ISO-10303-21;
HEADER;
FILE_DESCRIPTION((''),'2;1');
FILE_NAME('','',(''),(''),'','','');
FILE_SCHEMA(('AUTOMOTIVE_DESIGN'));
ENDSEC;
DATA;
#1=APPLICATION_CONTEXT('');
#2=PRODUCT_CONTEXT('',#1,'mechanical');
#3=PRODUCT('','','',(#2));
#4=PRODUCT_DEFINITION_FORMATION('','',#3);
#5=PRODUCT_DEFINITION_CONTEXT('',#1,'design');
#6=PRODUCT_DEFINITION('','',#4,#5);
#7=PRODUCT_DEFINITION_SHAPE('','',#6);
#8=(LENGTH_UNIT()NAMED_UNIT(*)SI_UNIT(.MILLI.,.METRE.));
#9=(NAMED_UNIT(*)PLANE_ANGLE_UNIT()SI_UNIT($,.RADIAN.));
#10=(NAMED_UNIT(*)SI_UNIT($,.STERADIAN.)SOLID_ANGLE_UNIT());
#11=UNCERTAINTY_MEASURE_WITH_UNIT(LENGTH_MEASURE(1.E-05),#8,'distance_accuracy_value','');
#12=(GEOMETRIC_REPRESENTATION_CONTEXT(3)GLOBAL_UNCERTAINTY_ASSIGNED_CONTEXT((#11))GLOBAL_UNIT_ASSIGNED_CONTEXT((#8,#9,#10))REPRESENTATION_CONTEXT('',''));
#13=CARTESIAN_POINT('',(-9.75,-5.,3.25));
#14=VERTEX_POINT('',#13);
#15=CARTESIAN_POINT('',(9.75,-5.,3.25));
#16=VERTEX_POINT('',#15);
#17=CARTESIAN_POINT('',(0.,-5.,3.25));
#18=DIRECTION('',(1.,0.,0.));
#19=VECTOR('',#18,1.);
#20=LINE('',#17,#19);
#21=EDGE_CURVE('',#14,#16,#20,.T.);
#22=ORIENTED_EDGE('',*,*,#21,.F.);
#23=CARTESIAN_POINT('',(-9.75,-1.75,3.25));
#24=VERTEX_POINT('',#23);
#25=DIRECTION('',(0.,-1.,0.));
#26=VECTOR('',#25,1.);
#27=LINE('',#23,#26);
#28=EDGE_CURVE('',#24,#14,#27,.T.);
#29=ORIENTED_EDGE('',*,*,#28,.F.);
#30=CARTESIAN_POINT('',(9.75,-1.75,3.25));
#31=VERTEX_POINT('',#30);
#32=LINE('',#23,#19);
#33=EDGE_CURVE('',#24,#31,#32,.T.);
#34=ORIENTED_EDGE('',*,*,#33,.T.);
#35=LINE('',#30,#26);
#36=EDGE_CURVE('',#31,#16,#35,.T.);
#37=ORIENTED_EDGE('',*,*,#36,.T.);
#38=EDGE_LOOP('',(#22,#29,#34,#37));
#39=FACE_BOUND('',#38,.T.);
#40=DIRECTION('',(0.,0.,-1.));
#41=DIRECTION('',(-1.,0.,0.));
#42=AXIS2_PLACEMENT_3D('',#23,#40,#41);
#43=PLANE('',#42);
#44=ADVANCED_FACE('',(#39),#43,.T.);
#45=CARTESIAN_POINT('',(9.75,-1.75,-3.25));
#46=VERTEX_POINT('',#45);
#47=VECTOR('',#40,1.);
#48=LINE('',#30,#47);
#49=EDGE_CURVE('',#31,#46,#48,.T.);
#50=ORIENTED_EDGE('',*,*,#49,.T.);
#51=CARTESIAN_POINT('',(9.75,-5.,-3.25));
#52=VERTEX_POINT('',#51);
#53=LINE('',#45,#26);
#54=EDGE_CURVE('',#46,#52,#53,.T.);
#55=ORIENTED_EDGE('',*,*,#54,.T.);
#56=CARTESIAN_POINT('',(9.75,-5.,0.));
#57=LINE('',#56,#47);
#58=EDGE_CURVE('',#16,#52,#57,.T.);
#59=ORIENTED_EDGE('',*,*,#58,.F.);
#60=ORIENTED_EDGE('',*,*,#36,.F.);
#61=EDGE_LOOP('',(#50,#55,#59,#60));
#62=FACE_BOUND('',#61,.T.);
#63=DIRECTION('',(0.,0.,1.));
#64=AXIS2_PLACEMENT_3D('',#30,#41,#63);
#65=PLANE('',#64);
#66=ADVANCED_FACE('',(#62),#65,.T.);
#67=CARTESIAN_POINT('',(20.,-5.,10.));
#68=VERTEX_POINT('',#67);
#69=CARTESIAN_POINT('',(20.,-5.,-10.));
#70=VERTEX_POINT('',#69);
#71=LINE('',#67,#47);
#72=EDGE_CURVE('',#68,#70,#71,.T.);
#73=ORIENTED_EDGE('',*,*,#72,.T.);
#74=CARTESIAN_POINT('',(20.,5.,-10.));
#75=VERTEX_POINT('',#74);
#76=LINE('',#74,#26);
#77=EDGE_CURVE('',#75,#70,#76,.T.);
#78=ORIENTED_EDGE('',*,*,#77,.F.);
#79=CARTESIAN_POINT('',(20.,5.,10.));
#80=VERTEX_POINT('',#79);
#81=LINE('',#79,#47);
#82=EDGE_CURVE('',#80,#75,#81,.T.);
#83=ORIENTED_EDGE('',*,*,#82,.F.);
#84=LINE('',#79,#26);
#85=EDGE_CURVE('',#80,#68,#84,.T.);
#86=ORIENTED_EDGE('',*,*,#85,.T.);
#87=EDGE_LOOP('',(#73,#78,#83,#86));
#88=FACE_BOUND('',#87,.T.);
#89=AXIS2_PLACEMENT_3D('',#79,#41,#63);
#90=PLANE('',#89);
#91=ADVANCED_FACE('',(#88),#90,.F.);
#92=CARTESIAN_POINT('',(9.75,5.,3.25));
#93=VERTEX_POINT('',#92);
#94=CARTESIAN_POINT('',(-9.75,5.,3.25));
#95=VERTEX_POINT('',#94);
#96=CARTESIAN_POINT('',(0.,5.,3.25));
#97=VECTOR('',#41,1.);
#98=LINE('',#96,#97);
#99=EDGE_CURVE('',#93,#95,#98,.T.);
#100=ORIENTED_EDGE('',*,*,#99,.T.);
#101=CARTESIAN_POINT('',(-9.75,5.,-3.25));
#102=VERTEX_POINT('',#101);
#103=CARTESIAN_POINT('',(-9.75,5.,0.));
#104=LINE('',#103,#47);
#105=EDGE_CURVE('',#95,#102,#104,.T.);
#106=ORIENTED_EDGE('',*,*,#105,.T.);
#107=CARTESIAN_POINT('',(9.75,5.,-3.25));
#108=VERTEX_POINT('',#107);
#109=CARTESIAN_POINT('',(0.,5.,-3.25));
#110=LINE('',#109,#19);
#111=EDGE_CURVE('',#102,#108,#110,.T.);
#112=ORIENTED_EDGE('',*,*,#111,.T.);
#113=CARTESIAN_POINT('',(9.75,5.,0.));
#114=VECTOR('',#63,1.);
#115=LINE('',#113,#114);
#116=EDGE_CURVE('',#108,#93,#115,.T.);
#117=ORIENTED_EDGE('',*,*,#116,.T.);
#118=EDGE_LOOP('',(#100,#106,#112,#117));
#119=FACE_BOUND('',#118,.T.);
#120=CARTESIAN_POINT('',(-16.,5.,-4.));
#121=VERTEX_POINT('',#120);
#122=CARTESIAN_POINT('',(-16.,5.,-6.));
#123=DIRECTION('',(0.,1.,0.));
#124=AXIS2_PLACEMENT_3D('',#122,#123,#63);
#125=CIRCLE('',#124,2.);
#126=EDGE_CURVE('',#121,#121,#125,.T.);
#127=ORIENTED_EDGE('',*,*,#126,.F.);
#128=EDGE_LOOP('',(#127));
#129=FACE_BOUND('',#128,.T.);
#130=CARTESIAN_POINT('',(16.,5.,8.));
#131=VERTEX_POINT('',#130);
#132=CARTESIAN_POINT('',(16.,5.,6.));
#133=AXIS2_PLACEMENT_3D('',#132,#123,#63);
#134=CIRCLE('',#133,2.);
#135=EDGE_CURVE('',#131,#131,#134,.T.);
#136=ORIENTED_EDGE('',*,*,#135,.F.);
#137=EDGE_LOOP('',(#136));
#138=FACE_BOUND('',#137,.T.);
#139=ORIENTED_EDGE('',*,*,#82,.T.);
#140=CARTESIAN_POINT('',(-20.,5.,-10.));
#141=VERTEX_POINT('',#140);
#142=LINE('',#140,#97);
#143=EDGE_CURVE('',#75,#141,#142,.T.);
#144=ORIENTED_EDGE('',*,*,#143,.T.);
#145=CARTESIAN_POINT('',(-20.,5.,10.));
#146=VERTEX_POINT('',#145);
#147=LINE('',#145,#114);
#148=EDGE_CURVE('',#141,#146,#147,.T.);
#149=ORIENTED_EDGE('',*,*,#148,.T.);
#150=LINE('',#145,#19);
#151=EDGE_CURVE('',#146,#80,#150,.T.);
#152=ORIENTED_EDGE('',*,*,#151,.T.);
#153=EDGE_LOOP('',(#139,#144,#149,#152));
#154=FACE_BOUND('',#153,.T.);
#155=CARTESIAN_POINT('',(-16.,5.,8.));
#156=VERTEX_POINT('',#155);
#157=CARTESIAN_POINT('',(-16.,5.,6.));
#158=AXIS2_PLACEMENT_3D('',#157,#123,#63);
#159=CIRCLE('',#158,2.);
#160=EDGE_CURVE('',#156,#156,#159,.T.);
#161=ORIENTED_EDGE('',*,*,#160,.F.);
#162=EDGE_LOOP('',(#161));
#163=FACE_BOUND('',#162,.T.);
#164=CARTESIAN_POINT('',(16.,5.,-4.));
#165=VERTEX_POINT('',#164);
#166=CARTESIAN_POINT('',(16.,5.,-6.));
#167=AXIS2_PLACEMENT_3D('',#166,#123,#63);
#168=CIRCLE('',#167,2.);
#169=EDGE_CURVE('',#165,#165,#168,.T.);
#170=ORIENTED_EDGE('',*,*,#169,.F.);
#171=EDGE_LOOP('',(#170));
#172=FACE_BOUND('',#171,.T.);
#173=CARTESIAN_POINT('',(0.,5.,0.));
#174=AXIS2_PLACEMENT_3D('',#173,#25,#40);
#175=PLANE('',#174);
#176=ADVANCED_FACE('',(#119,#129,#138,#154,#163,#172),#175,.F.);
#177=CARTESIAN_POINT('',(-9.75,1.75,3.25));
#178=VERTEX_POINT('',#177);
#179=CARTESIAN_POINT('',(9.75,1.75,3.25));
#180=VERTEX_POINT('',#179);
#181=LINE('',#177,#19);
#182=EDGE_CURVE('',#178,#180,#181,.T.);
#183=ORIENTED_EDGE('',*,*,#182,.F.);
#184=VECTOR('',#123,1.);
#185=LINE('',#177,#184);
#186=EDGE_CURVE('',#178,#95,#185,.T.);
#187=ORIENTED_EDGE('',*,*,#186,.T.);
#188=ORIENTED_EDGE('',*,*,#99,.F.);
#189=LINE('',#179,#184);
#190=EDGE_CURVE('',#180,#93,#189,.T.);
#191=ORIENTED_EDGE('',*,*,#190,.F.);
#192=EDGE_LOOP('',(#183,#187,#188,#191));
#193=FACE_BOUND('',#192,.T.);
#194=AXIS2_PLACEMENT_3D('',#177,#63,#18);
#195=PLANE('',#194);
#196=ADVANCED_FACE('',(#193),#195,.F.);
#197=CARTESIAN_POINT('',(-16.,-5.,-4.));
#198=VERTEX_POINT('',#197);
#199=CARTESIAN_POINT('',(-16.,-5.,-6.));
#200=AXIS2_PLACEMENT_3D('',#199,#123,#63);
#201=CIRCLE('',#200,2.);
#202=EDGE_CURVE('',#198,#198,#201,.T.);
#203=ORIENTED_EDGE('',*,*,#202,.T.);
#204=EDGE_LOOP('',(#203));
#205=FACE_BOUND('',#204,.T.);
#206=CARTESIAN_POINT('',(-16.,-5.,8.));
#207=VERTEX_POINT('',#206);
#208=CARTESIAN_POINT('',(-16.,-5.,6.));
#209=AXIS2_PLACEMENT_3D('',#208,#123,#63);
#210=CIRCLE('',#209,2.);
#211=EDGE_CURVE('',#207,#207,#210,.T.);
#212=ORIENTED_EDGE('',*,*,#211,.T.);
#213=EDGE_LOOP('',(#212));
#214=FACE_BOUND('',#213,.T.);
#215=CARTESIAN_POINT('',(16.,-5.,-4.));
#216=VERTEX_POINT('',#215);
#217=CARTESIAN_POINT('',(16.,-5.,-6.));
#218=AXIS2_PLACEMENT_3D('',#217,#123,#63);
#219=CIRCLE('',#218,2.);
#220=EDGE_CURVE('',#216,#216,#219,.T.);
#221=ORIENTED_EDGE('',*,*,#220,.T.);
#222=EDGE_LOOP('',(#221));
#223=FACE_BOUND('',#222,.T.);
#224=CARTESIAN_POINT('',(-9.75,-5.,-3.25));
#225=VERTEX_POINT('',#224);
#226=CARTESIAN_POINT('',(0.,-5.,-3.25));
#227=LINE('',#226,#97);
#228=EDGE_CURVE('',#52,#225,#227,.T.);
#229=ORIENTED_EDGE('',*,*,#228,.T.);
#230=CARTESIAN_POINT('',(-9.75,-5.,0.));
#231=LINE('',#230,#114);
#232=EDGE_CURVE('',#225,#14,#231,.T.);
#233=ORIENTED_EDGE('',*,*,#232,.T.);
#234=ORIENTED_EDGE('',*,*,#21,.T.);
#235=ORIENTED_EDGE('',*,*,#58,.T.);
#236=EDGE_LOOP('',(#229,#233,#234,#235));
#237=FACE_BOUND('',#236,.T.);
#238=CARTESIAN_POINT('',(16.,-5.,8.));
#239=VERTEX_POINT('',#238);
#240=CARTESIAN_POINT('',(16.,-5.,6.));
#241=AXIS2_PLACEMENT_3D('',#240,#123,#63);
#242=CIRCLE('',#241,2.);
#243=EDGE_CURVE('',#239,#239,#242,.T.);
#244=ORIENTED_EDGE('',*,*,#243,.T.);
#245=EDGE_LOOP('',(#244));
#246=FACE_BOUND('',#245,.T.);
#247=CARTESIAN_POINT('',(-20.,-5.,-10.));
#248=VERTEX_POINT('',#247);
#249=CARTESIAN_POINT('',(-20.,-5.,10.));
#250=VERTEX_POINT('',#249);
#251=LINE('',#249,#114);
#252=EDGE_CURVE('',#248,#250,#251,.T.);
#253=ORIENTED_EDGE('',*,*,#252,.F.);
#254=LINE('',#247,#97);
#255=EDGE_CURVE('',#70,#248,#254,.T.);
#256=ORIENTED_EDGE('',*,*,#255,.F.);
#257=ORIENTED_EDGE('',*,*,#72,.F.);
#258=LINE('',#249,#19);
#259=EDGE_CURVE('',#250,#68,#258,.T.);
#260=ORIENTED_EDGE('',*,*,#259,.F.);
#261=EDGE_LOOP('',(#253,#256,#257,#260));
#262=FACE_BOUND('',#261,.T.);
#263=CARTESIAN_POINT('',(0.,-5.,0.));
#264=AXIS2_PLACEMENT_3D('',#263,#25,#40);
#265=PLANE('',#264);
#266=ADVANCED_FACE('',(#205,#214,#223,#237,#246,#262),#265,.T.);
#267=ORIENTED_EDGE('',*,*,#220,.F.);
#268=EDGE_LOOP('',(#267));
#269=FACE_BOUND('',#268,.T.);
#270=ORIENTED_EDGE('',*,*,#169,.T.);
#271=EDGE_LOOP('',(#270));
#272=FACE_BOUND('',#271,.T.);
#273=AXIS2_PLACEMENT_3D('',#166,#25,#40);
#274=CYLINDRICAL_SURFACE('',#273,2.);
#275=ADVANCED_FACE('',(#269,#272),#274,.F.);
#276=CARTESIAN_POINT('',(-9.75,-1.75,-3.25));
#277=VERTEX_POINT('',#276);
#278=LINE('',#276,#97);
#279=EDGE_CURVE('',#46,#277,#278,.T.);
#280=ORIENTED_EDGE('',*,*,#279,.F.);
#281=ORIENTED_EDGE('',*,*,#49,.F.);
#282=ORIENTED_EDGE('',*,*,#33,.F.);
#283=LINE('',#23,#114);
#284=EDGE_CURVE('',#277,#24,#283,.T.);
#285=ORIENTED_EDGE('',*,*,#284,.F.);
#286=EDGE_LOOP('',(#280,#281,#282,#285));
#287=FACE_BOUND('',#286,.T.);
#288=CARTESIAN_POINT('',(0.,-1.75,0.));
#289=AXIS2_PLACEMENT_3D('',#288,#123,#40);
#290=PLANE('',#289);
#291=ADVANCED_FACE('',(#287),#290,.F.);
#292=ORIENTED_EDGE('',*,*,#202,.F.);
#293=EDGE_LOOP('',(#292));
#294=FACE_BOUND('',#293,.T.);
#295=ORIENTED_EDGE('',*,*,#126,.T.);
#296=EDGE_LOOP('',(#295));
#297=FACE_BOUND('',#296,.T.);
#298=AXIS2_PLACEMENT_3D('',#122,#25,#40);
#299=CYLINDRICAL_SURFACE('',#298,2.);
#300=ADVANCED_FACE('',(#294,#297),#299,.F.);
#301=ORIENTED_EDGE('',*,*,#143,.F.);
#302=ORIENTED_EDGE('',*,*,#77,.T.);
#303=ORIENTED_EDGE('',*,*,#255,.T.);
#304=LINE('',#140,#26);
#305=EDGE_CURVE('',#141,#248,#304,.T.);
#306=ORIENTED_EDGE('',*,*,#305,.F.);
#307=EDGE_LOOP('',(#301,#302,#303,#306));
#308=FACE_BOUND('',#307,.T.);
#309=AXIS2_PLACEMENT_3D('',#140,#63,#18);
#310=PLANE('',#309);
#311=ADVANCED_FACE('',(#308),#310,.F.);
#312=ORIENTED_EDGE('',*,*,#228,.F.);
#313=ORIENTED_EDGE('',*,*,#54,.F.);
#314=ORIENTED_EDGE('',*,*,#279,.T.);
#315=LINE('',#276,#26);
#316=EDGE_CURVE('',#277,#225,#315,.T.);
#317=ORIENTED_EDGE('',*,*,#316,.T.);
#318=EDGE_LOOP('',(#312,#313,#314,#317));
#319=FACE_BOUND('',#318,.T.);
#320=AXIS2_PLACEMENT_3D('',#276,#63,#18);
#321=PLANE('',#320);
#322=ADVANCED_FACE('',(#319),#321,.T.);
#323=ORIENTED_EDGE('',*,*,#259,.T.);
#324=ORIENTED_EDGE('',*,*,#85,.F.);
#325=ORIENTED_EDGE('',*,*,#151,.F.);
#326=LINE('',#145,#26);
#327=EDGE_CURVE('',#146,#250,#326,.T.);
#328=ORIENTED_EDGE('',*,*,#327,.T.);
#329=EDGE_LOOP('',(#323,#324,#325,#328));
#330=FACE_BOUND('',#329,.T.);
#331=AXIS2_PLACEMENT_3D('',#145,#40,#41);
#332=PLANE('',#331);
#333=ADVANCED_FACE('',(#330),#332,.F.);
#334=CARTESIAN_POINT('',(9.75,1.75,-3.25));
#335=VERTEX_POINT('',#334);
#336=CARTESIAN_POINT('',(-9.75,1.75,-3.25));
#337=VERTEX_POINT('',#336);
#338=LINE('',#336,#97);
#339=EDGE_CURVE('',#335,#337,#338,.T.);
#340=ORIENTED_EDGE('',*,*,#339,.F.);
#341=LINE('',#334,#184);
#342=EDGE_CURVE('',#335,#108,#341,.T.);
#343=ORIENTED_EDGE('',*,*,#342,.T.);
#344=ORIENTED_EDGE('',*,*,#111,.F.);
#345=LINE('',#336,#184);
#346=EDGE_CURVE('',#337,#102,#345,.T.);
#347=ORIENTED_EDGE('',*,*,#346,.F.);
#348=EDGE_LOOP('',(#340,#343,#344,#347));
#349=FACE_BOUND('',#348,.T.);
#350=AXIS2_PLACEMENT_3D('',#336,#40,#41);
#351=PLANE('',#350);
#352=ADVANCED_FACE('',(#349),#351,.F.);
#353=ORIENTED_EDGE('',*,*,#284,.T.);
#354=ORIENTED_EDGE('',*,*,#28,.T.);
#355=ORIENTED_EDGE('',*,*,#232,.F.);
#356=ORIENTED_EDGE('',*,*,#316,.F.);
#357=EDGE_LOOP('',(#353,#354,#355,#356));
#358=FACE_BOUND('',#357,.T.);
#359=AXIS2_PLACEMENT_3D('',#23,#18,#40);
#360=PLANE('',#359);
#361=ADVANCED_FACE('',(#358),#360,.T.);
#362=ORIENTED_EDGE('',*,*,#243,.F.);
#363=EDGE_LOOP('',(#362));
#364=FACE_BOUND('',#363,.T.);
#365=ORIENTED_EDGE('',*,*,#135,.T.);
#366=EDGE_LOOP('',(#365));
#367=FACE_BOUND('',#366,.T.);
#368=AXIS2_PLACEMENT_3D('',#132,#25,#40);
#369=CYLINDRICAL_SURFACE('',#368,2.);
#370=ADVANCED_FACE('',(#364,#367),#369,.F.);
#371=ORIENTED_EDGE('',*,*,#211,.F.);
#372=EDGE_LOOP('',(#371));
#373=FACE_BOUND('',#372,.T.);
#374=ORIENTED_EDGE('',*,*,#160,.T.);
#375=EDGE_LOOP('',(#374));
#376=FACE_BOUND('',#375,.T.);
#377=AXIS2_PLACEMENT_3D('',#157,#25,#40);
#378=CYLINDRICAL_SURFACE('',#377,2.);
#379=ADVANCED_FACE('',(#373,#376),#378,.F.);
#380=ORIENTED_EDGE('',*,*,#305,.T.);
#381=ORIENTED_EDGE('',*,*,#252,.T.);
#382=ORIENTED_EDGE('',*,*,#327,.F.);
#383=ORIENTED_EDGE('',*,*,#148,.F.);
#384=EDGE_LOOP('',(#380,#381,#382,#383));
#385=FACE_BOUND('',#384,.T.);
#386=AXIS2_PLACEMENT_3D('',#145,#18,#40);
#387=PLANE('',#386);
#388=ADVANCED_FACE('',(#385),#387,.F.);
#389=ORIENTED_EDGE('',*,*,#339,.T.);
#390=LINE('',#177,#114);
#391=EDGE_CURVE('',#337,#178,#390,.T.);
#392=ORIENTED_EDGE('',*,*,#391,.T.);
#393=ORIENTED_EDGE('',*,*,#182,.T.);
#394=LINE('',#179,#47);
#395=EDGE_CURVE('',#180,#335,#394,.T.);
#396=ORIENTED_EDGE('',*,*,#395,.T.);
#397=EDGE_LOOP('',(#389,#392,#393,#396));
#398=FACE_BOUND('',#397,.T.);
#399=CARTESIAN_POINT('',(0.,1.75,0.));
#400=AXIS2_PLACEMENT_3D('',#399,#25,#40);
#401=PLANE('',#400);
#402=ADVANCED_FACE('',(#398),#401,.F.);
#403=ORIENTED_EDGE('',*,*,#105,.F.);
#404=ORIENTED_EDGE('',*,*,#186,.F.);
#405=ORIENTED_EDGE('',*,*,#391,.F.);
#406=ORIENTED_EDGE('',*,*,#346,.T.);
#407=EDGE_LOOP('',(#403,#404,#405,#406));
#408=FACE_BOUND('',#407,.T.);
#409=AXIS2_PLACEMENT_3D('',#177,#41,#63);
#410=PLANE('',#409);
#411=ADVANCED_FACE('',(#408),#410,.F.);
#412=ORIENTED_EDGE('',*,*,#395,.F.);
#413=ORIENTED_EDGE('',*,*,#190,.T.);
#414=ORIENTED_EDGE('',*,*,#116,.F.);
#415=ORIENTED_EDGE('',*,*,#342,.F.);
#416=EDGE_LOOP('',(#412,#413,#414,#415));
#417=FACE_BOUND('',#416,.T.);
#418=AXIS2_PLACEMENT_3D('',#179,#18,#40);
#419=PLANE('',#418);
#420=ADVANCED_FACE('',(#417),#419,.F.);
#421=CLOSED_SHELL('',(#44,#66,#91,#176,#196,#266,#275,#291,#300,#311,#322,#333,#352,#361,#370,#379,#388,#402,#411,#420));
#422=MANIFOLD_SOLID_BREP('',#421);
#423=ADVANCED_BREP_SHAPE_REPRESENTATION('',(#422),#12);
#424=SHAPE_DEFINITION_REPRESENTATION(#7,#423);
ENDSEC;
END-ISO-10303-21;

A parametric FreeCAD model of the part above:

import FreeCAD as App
import Part
import Sketcher
from FreeCAD import Vector
Q = App.Units.Quantity


def add_polygon(sketch, points):
    """Adds a closed chain of lines whose ends are joined by coincident constraints."""
    first, n = sketch.GeometryCount, len(points)
    for a, b in zip(points, points[1:] + points[:1]):
        sketch.addGeometry(Part.LineSegment(App.Vector(*a, 0), App.Vector(*b, 0)), False)
    for i in range(n):
        sketch.addConstraint(Sketcher.Constraint("Coincident", first + i, 2, first + (i + 1) % n, 1))

doc = App.newDocument("Part")
body = doc.addObject("PartDesign::Body", "Body")

# Sketch on XZ plane
sketch1 = body.newObject("Sketcher::SketchObject", "Sketch")
sketch1.AttachmentSupport = (doc.getObject("XZ_Plane"), [""])
sketch1.MapMode = "FlatFace"
add_polygon(sketch1, [(-20, -10), (-20, 10), (20, 10), (20, -10)])  # lines 0-3
sketch1.addGeometry(Part.Circle(Vector(-16, 6, 0), Vector(0, 0, 1), 2), False)  # 4
sketch1.addGeometry(Part.Circle(Vector(16, 6, 0), Vector(0, 0, 1), 2), False)  # 5
sketch1.addGeometry(Part.Circle(Vector(-16, -6, 0), Vector(0, 0, 1), 2), False)  # 6
sketch1.addGeometry(Part.Circle(Vector(16, -6, 0), Vector(0, 0, 1), 2), False)  # 7
sketch1.addConstraint(Sketcher.Constraint("Vertical", 0))
sketch1.addConstraint(Sketcher.Constraint("Horizontal", 1))
sketch1.addConstraint(Sketcher.Constraint("Vertical", 2))
sketch1.addConstraint(Sketcher.Constraint("Horizontal", 3))
sketch1.addConstraint(Sketcher.Constraint("Equal", 4, 5))
sketch1.addConstraint(Sketcher.Constraint("Equal", 5, 6))
sketch1.addConstraint(Sketcher.Constraint("Equal", 6, 7))
sketch1.addConstraint(Sketcher.Constraint("Symmetric", 5, 3, 6, 3, -1, 1))
sketch1.addConstraint(Sketcher.Constraint("Symmetric", 4, 3, 7, 3, -1, 1))
sketch1.addConstraint(Sketcher.Constraint("Symmetric", 0, 2, 2, 2, -1, 1))
sketch1.addConstraint(Sketcher.Constraint("Symmetric", 4, 3, 5, 3, -2))
sketch1.addConstraint(Sketcher.Constraint("Diameter", 4, Q("4 mm")))
sketch1.addConstraint(Sketcher.Constraint("DistanceX", 1, 1, 1, 2, Q("40 mm")))
sketch1.addConstraint(Sketcher.Constraint("DistanceY", 0, 1, 0, 2, Q("20 mm")))
sketch1.addConstraint(Sketcher.Constraint("DistanceX", 4, 3, -1, 1, Q("16 mm")))
sketch1.addConstraint(Sketcher.Constraint("DistanceY", -1, 1, 4, 3, Q("6 mm")))
pad1 = body.newObject("PartDesign::Pad", "Pad")
pad1.Profile = sketch1
pad1.Length = 10
pad1.Midplane = True

# Sketch on XZ plane
sketch2 = body.newObject("Sketcher::SketchObject", "Sketch001")
sketch2.AttachmentSupport = (doc.getObject("XZ_Plane"), [""])
sketch2.MapMode = "FlatFace"
sketch2.AttachmentOffset = App.Placement(Vector(0, 0, -5), App.Rotation())
add_polygon(sketch2, [(-10, -3), (-10, 3), (10, 3), (10, -3)])  # lines 0-3
sketch2.addConstraint(Sketcher.Constraint("Vertical", 0))
sketch2.addConstraint(Sketcher.Constraint("Horizontal", 1))
sketch2.addConstraint(Sketcher.Constraint("Vertical", 2))
sketch2.addConstraint(Sketcher.Constraint("Horizontal", 3))
sketch2.addConstraint(Sketcher.Constraint("Symmetric", 0, 2, 2, 2, -1, 1))
sketch2.addConstraint(Sketcher.Constraint("DistanceX", 1, 1, 1, 2, Q("19.5 mm")))
sketch2.addConstraint(Sketcher.Constraint("DistanceY", 0, 1, 0, 2, Q("6.5 mm")))
pocket1 = body.newObject("PartDesign::Pocket", "Pocket")
pocket1.Profile = sketch2
pocket1.Length = 6.5
pocket1.Midplane = True
doc.recompute()

mirrored = body.newObject("PartDesign::Mirrored", "Mirrored")
mirrored.Originals = [pocket1]
mirrored.MirrorPlane = (doc.getObject("XZ_Plane"), [""])
body.Tip = mirrored

doc.recompute()
